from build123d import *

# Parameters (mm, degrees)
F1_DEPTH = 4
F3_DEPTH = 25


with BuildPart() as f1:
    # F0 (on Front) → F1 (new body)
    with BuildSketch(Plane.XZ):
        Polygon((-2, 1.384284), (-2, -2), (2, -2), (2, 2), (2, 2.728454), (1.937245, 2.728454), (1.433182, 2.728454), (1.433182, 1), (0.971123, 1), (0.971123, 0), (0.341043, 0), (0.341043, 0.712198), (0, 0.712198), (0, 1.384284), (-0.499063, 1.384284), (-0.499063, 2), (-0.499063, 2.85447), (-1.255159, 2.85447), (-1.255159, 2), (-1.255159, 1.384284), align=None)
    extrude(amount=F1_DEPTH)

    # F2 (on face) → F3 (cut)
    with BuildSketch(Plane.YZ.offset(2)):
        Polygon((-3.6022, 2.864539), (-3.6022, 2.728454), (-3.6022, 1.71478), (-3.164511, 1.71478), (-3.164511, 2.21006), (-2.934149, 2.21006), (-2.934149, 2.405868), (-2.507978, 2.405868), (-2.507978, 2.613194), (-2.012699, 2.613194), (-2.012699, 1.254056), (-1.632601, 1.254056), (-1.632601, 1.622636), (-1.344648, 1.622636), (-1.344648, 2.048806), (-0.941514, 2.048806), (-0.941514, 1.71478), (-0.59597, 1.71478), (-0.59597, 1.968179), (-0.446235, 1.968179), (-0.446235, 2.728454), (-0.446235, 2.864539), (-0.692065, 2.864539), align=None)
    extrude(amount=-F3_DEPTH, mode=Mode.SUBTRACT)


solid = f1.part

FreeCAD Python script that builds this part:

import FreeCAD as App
import Part
import Sketcher
from FreeCAD import Vector

doc = App.newDocument("Part")
body = doc.addObject("PartDesign::Body", "Body")

# Sketch on XZ plane
sketch1 = body.newObject("Sketcher::SketchObject", "Sketch")
sketch1.AttachmentSupport = (doc.getObject("XZ_Plane"), [""])
sketch1.MapMode = "FlatFace"
sketch1.addGeometry([
    Part.LineSegment(Vector(-2, 1.38, 0), Vector(-2, -2, 0)),  # 0
    Part.LineSegment(Vector(-2, -2, 0), Vector(2, -2, 0)),  # 1
    Part.LineSegment(Vector(2, -2, 0), Vector(2, 2.73, 0)),  # 2
    Part.LineSegment(Vector(2, 2.73, 0), Vector(1.43, 2.73, 0)),  # 3
    Part.LineSegment(Vector(1.43, 2.73, 0), Vector(1.43, 1, 0)),  # 4
    Part.LineSegment(Vector(1.43, 1, 0), Vector(0.97, 1, 0)),  # 5
    Part.LineSegment(Vector(0.97, 1, 0), Vector(0.97, 0, 0)),  # 6
    Part.LineSegment(Vector(0.97, 0, 0), Vector(0.34, 0, 0)),  # 7
    Part.LineSegment(Vector(0.34, 0, 0), Vector(0.34, 0.71, 0)),  # 8
    Part.LineSegment(Vector(0.34, 0.71, 0), Vector(0, 0.71, 0)),  # 9
    Part.LineSegment(Vector(0, 0.71, 0), Vector(0, 1.38, 0)),  # 10
    Part.LineSegment(Vector(0, 1.38, 0), Vector(-0.5, 1.38, 0)),  # 11
    Part.LineSegment(Vector(-0.5, 1.38, 0), Vector(-0.5, 2.85, 0)),  # 12
    Part.LineSegment(Vector(-0.5, 2.85, 0), Vector(-1.26, 2.85, 0)),  # 13
    Part.LineSegment(Vector(-1.26, 2.85, 0), Vector(-1.26, 1.38, 0)),  # 14
    Part.LineSegment(Vector(-1.26, 1.38, 0), Vector(-2, 1.38, 0)),  # 15
], False)
sketch1.addConstraint([
    Sketcher.Constraint("Coincident", 0, 2, 1, 1),
    Sketcher.Constraint("Coincident", 1, 2, 2, 1),
    Sketcher.Constraint("Coincident", 2, 2, 3, 1),
    Sketcher.Constraint("Coincident", 3, 2, 4, 1),
    Sketcher.Constraint("Coincident", 4, 2, 5, 1),
    Sketcher.Constraint("Coincident", 5, 2, 6, 1),
    Sketcher.Constraint("Coincident", 6, 2, 7, 1),
    Sketcher.Constraint("Coincident", 7, 2, 8, 1),
    Sketcher.Constraint("Coincident", 8, 2, 9, 1),
    Sketcher.Constraint("Coincident", 9, 2, 10, 1),
    Sketcher.Constraint("Coincident", 10, 2, 11, 1),
    Sketcher.Constraint("Coincident", 11, 2, 12, 1),
    Sketcher.Constraint("Coincident", 12, 2, 13, 1),
    Sketcher.Constraint("Coincident", 13, 2, 14, 1),
    Sketcher.Constraint("Coincident", 14, 2, 15, 1),
    Sketcher.Constraint("Coincident", 15, 2, 0, 1),
    Sketcher.Constraint("Vertical", 0),
    Sketcher.Constraint("Horizontal", 1),
    Sketcher.Constraint("Vertical", 2),
    Sketcher.Constraint("Horizontal", 3),
    Sketcher.Constraint("Vertical", 4),
    Sketcher.Constraint("Horizontal", 5),
    Sketcher.Constraint("Vertical", 6),
    Sketcher.Constraint("Horizontal", 7),
    Sketcher.Constraint("Vertical", 8),
    Sketcher.Constraint("Horizontal", 9),
    Sketcher.Constraint("Vertical", 10),
    Sketcher.Constraint("Horizontal", 11),
    Sketcher.Constraint("Vertical", 12),
    Sketcher.Constraint("Horizontal", 13),
    Sketcher.Constraint("Vertical", 14),
    Sketcher.Constraint("Horizontal", 15),
    Sketcher.Constraint("PointOnObject", 6, 2, -1),
    Sketcher.Constraint("PointOnObject", 9, 2, -2),
    Sketcher.Constraint("Horizontal", 11, 2, 14, 2),
    Sketcher.Constraint("DistanceX", 1, 1, 1, 2, 4.0),
    Sketcher.Constraint("DistanceY", 6, 2, 6, 1, 1.0),
    Sketcher.Constraint("DistanceX", 0, 2, -1, 1, 2.0),
    Sketcher.Constraint("DistanceY", 0, 2, -1, 1, 2.0),
    Sketcher.Constraint("DistanceX", 3, 2, 3, 1, 0.566818),
    Sketcher.Constraint("DistanceX", 5, 2, 5, 1, 0.462059),
    Sketcher.Constraint("DistanceX", 7, 2, 7, 1, 0.63008),
    Sketcher.Constraint("DistanceX", 15, 2, 15, 1, 0.744841),
    Sketcher.Constraint("DistanceX", 11, 2, 11, 1, 0.499063),
    Sketcher.Constraint("DistanceY", 0, 2, 0, 1, 3.384284),
    Sketcher.Constraint("DistanceY", 2, 1, 2, 2, 4.728454),
    Sketcher.Constraint("DistanceY", 8, 1, 8, 2, 0.712198),
    Sketcher.Constraint("DistanceY", 12, 1, 12, 2, 1.470186),
])
pad1 = body.newObject("PartDesign::Pad", "Pad")
pad1.Profile = sketch1
pad1.Length = 4

# Sketch on YZ plane
sketch2 = body.newObject("Sketcher::SketchObject", "Sketch001")
sketch2.AttachmentSupport = (doc.getObject("YZ_Plane"), [""])
sketch2.MapMode = "FlatFace"
sketch2.AttachmentOffset = App.Placement(Vector(0, 0, 2), App.Rotation())
sketch2.addGeometry([
    Part.LineSegment(Vector(-3.6, 2.86, 0), Vector(-3.6, 1.71, 0)),  # 0
    Part.LineSegment(Vector(-3.6, 1.71, 0), Vector(-3.16, 1.71, 0)),  # 1
    Part.LineSegment(Vector(-3.16, 1.71, 0), Vector(-3.16, 2.21, 0)),  # 2
    Part.LineSegment(Vector(-3.16, 2.21, 0), Vector(-2.93, 2.21, 0)),  # 3
    Part.LineSegment(Vector(-2.93, 2.21, 0), Vector(-2.93, 2.41, 0)),  # 4
    Part.LineSegment(Vector(-2.93, 2.41, 0), Vector(-2.51, 2.41, 0)),  # 5
    Part.LineSegment(Vector(-2.51, 2.41, 0), Vector(-2.51, 2.61, 0)),  # 6
    Part.LineSegment(Vector(-2.51, 2.61, 0), Vector(-2.01, 2.61, 0)),  # 7
    Part.LineSegment(Vector(-2.01, 2.61, 0), Vector(-2.01, 1.25, 0)),  # 8
    Part.LineSegment(Vector(-2.01, 1.25, 0), Vector(-1.63, 1.25, 0)),  # 9
    Part.LineSegment(Vector(-1.63, 1.25, 0), Vector(-1.63, 1.62, 0)),  # 10
    Part.LineSegment(Vector(-1.63, 1.62, 0), Vector(-1.34, 1.62, 0)),  # 11
    Part.LineSegment(Vector(-1.34, 1.62, 0), Vector(-1.34, 2.05, 0)),  # 12
    Part.LineSegment(Vector(-1.34, 2.05, 0), Vector(-0.94, 2.05, 0)),  # 13
    Part.LineSegment(Vector(-0.94, 2.05, 0), Vector(-0.94, 1.71, 0)),  # 14
    Part.LineSegment(Vector(-0.94, 1.71, 0), Vector(-0.6, 1.71, 0)),  # 15
    Part.LineSegment(Vector(-0.6, 1.71, 0), Vector(-0.6, 1.97, 0)),  # 16
    Part.LineSegment(Vector(-0.6, 1.97, 0), Vector(-0.45, 1.97, 0)),  # 17
    Part.LineSegment(Vector(-0.45, 1.97, 0), Vector(-0.45, 2.86, 0)),  # 18
    Part.LineSegment(Vector(-0.45, 2.86, 0), Vector(-3.6, 2.86, 0)),  # 19
], False)
sketch2.addConstraint([
    Sketcher.Constraint("Coincident", 0, 2, 1, 1),
    Sketcher.Constraint("Coincident", 1, 2, 2, 1),
    Sketcher.Constraint("Coincident", 2, 2, 3, 1),
    Sketcher.Constraint("Coincident", 3, 2, 4, 1),
    Sketcher.Constraint("Coincident", 4, 2, 5, 1),
    Sketcher.Constraint("Coincident", 5, 2, 6, 1),
    Sketcher.Constraint("Coincident", 6, 2, 7, 1),
    Sketcher.Constraint("Coincident", 7, 2, 8, 1),
    Sketcher.Constraint("Coincident", 8, 2, 9, 1),
    Sketcher.Constraint("Coincident", 9, 2, 10, 1),
    Sketcher.Constraint("Coincident", 10, 2, 11, 1),
    Sketcher.Constraint("Coincident", 11, 2, 12, 1),
    Sketcher.Constraint("Coincident", 12, 2, 13, 1),
    Sketcher.Constraint("Coincident", 13, 2, 14, 1),
    Sketcher.Constraint("Coincident", 14, 2, 15, 1),
    Sketcher.Constraint("Coincident", 15, 2, 16, 1),
    Sketcher.Constraint("Coincident", 16, 2, 17, 1),
    Sketcher.Constraint("Coincident", 17, 2, 18, 1),
    Sketcher.Constraint("Coincident", 18, 2, 19, 1),
    Sketcher.Constraint("Coincident", 19, 2, 0, 1),
    Sketcher.Constraint("Vertical", 0),
    Sketcher.Constraint("Horizontal", 1),
    Sketcher.Constraint("Vertical", 2),
    Sketcher.Constraint("Horizontal", 3),
    Sketcher.Constraint("Vertical", 4),
    Sketcher.Constraint("Horizontal", 5),
    Sketcher.Constraint("Vertical", 6),
    Sketcher.Constraint("Horizontal", 7),
    Sketcher.Constraint("Vertical", 8),
    Sketcher.Constraint("Horizontal", 9),
    Sketcher.Constraint("Vertical", 10),
    Sketcher.Constraint("Horizontal", 11),
    Sketcher.Constraint("Vertical", 12),
    Sketcher.Constraint("Horizontal", 13),
    Sketcher.Constraint("Vertical", 14),
    Sketcher.Constraint("Horizontal", 15),
    Sketcher.Constraint("Vertical", 16),
    Sketcher.Constraint("Horizontal", 17),
    Sketcher.Constraint("Vertical", 18),
    Sketcher.Constraint("Horizontal", 19),
    Sketcher.Constraint("Horizontal", 1, 2, 14, 2),
    Sketcher.Constraint("Equal", 7, 2),
    Sketcher.Constraint("Equal", 5, 12),
    Sketcher.Constraint("DistanceX", 9, 1, 9, 2, 0.380098),
    Sketcher.Constraint("DistanceY", 16, 1, 16, 2, 0.253399),
    Sketcher.Constraint("DistanceX", 1, 1, 1, 2, 0.437689),
    Sketcher.Constraint("DistanceX", 3, 1, 3, 2, 0.230362),
    Sketcher.Constraint("DistanceX", 5, 1, 5, 2, 0.426171),
    Sketcher.Constraint("DistanceX", 7, 1, 7, 2, 0.495279),
    Sketcher.Constraint("DistanceY", 0, 2, 0, 1, 1.149759),
    Sketcher.Constraint("DistanceY", 10, 1, 10, 2, 0.36858),
    Sketcher.Constraint("DistanceX", 0, 2, -1, 1, 3.6022),
    Sketcher.Constraint("DistanceX", 11, 1, 11, 2, 0.287953),
    Sketcher.Constraint("DistanceX", 13, 1, 13, 2, 0.403134),
    Sketcher.Constraint("DistanceX", 15, 1, 15, 2, 0.345544),
    Sketcher.Constraint("DistanceX", 17, 1, 17, 2, 0.149735),
    Sketcher.Constraint("DistanceY", 4, 1, 4, 2, 0.195808),
    Sketcher.Constraint("DistanceY", 6, 1, 6, 2, 0.207326),
    Sketcher.Constraint("DistanceY", 8, 2, 8, 1, 1.359138),
    Sketcher.Constraint("DistanceY", -1, 1, 0, 2, 1.71478),
])
pocket1 = body.newObject("PartDesign::Pocket", "Pocket")
pocket1.Profile = sketch2
pocket1.Length = 25

doc.recompute()
